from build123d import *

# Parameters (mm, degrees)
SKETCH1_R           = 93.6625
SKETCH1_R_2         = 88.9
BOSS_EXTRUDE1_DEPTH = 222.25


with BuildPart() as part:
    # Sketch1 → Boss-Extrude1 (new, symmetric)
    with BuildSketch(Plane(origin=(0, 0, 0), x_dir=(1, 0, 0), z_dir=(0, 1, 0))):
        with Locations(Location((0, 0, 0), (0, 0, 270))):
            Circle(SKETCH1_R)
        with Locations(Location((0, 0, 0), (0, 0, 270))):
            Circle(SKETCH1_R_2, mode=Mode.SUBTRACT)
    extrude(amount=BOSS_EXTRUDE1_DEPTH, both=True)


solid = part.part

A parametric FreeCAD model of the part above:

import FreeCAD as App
import Part
import Sketcher
from FreeCAD import Vector
Q = App.Units.Quantity

doc = App.newDocument("Part")
body = doc.addObject("PartDesign::Body", "Body")

sketch1 = body.newObject("Sketcher::SketchObject", "Sketch")
sketch1.AttachmentSupport = (doc.getObject("XZ_Plane"), [""])
sketch1.MapMode = "FlatFace"
sketch1.addGeometry([
    Part.Circle(Vector(0, 0, 0), Vector(0, 0, 1), 93.6625),
    Part.Circle(Vector(0, 0, 0), Vector(0, 0, 1), 88.9),
], False)
sketch1.addConstraint([
    Sketcher.Constraint("Coincident", 0, 3, -1, 1),
    Sketcher.Constraint("Coincident", 1, 3, -1, 1),
    Sketcher.Constraint("Diameter", 1, Q("7 in")),
    Sketcher.Constraint("Diameter", 0, Q("7.375 in")),
])
pad1 = body.newObject("PartDesign::Pad", "Pad")
pad1.Profile = sketch1
pad1.Length = Q("17.5 in")
pad1.Midplane = True

doc.recompute()
